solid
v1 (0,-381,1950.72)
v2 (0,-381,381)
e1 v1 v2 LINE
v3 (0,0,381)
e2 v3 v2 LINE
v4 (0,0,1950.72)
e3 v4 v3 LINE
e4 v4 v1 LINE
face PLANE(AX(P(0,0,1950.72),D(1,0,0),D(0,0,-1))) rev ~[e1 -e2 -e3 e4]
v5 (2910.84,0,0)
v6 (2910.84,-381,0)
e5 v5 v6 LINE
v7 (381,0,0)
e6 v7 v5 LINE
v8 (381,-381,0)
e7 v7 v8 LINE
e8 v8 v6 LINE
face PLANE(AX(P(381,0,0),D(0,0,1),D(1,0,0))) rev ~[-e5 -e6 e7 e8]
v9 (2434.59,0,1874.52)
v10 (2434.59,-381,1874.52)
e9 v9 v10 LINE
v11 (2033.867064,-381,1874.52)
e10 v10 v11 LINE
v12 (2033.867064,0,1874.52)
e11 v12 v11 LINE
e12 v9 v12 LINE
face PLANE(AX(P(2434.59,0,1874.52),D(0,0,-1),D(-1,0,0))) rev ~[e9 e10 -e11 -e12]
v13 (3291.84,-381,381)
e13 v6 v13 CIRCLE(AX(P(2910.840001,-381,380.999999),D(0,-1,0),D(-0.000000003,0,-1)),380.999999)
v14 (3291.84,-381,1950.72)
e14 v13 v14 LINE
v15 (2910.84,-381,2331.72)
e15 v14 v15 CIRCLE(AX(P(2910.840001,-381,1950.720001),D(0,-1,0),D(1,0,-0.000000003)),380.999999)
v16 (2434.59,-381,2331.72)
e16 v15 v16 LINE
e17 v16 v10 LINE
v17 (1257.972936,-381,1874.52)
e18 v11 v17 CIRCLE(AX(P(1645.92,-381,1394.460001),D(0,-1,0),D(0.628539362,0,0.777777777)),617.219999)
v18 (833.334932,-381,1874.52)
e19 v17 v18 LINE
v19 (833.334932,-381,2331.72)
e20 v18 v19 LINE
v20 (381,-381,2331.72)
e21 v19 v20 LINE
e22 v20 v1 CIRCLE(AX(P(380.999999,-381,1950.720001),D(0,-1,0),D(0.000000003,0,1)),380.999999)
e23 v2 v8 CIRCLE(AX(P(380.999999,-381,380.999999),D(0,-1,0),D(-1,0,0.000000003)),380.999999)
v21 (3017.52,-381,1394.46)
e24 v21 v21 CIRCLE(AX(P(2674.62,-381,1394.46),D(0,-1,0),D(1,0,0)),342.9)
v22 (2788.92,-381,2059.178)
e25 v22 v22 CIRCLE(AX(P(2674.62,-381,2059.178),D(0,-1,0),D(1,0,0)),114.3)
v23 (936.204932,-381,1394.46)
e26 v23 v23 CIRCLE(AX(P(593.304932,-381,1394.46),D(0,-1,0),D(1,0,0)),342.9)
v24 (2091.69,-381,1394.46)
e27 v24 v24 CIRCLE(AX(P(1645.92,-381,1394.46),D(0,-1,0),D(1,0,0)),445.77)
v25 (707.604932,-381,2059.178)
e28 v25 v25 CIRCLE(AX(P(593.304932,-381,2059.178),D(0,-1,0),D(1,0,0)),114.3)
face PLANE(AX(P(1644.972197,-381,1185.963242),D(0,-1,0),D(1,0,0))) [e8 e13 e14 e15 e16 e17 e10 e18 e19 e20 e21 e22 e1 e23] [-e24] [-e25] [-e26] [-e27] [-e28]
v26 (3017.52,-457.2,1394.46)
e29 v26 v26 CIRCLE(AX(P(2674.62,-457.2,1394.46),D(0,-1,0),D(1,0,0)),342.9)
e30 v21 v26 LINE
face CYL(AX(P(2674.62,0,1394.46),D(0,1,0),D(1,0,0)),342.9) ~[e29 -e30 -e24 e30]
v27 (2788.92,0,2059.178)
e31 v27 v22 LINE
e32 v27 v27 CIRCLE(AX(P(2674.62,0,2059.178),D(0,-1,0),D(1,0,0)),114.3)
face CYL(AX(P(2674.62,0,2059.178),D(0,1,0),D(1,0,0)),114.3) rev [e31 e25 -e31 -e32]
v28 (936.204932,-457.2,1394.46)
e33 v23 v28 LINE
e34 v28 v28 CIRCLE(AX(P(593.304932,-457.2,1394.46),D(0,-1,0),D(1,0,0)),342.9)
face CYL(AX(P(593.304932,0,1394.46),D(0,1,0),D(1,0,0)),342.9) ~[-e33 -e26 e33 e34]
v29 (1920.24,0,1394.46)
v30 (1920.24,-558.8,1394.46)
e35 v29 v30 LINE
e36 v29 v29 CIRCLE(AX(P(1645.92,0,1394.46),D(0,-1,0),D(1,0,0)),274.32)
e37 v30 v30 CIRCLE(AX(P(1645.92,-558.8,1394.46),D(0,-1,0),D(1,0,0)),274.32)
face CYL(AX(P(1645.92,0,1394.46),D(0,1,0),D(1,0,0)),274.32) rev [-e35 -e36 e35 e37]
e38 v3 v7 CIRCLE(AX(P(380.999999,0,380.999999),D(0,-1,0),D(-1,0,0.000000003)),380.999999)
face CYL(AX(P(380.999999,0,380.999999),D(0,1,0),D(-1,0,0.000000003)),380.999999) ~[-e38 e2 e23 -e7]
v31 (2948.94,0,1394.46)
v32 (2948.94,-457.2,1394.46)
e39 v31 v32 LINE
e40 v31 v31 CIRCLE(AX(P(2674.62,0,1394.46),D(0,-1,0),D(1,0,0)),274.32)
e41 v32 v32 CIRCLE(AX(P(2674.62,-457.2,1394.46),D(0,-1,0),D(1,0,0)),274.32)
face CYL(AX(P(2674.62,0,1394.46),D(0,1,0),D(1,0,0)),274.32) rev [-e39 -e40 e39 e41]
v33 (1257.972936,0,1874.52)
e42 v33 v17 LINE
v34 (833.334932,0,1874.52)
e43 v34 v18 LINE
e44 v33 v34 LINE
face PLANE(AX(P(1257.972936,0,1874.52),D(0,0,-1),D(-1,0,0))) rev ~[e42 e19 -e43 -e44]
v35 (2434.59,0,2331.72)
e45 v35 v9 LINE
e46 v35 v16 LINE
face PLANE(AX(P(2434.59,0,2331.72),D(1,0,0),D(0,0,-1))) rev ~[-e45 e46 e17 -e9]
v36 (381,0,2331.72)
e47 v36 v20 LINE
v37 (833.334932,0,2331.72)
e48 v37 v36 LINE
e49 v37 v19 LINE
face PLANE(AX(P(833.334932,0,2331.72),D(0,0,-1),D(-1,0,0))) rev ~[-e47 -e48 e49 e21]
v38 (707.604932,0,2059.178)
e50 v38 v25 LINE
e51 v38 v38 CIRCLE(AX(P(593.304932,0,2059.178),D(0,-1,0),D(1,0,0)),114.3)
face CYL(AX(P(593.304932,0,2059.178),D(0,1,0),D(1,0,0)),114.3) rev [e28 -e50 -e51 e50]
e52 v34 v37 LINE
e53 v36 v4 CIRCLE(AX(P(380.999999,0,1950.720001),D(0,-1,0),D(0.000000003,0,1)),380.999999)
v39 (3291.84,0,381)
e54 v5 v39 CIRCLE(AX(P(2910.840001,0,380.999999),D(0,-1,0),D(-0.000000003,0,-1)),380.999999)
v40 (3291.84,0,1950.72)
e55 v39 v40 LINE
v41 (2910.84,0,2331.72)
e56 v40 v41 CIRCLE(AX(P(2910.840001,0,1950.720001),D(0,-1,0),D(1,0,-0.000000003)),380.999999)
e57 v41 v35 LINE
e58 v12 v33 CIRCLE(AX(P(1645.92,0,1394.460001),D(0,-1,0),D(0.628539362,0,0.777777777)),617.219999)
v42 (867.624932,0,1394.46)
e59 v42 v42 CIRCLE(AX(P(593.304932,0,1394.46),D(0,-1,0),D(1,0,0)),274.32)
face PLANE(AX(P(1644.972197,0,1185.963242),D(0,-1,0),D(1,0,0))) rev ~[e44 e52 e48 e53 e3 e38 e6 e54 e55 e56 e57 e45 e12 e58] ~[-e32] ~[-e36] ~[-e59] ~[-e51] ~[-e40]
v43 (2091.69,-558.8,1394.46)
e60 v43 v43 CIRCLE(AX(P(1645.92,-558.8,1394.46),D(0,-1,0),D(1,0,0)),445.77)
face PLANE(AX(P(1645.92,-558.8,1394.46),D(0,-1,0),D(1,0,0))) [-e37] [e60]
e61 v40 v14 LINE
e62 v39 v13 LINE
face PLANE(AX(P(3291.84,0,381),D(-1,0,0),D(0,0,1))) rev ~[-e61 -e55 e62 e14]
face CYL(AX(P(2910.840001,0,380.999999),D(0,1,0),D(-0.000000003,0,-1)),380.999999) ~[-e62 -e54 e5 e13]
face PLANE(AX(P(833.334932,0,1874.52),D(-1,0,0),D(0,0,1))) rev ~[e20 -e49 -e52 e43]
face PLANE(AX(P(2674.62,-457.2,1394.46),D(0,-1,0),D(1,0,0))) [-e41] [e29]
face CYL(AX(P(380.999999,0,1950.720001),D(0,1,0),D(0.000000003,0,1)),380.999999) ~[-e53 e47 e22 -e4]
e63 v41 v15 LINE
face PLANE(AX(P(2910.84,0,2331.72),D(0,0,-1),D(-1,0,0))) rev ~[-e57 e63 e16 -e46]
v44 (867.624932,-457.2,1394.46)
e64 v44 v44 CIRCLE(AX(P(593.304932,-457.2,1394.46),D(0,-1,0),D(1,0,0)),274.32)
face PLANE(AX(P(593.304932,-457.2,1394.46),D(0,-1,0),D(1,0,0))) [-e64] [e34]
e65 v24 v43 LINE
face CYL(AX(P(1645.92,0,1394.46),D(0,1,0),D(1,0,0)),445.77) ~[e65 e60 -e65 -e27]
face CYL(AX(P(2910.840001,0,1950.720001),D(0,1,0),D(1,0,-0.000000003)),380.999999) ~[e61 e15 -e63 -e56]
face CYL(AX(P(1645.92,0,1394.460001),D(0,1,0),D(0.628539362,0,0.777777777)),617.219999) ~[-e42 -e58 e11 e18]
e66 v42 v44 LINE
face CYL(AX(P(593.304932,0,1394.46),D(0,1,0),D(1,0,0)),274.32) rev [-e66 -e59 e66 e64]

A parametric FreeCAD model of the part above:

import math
import FreeCAD as App
import Part
import Sketcher
from FreeCAD import Vector
Q = App.Units.Quantity

doc = App.newDocument("Part")
body = doc.addObject("PartDesign::Body", "Body")

# Sketch on XZ plane
sketch1 = body.newObject("Sketcher::SketchObject", "Sketch")
sketch1.AttachmentSupport = (doc.getObject("XZ_Plane"), [""])
sketch1.MapMode = "FlatFace"
sketch1.addGeometry(Part.ArcOfCircle(Part.Circle(Vector(380.999999, 380.999999, 0), Vector(0, 0, 1), 380.999999), math.radians(180), math.radians(270)), False)
sketch1.addGeometry(Part.LineSegment(Vector(381, 0, 0), Vector(2910.84, 0, 0)), False)
sketch1.addGeometry(Part.ArcOfCircle(Part.Circle(Vector(2910.840001, 380.999999, 0), Vector(0, 0, 1), 380.999999), math.radians(-90), math.radians(0)), False)
sketch1.addGeometry(Part.LineSegment(Vector(3291.84, 381, 0), Vector(3291.84, 1950.72, 0)), False)
sketch1.addGeometry(Part.ArcOfCircle(Part.Circle(Vector(2910.840001, 1950.720001, 0), Vector(0, 0, 1), 380.999999), math.radians(0), math.radians(90)), False)
sketch1.addGeometry(Part.LineSegment(Vector(2910.84, 2331.72, 0), Vector(2434.59, 2331.72, 0)), False)
sketch1.addGeometry(Part.LineSegment(Vector(2434.59, 2331.72, 0), Vector(2434.59, 1874.52, 0)), False)
sketch1.addGeometry(Part.LineSegment(Vector(2434.59, 1874.52, 0), Vector(2033.867064, 1874.52, 0)), False)
sketch1.addGeometry(Part.ArcOfCircle(Part.Circle(Vector(1645.92, 1394.460001, 0), Vector(0, 0, 1), 617.219999), math.radians(51.057559), math.radians(128.942441)), False)
sketch1.addGeometry(Part.LineSegment(Vector(1257.972936, 1874.52, 0), Vector(833.334932, 1874.52, 0)), False)
sketch1.addGeometry(Part.LineSegment(Vector(833.334932, 1874.52, 0), Vector(833.334932, 2331.72, 0)), False)
sketch1.addGeometry(Part.LineSegment(Vector(833.334932, 2331.72, 0), Vector(381, 2331.72, 0)), False)
sketch1.addGeometry(Part.ArcOfCircle(Part.Circle(Vector(380.999999, 1950.720001, 0), Vector(0, 0, 1), 380.999999), math.radians(90), math.radians(180)), False)
sketch1.addGeometry(Part.LineSegment(Vector(0, 1950.72, 0), Vector(0, 381, 0)), False)
sketch1.addGeometry(Part.Circle(Vector(593.304932, 1394.46, 0), Vector(0, 0, 1), 342.9), False)
sketch1.addGeometry(Part.Circle(Vector(1645.92, 1394.46, 0), Vector(0, 0, 1), 445.77), False)
sketch1.addGeometry(Part.Circle(Vector(2674.62, 1394.46, 0), Vector(0, 0, 1), 342.9), False)
sketch1.addGeometry(Part.Circle(Vector(593.304932, 2059.178, 0), Vector(0, 0, 1), 114.3), False)
sketch1.addGeometry(Part.Circle(Vector(2674.62, 2059.178, 0), Vector(0, 0, 1), 114.3), False)
sketch1.addConstraint(Sketcher.Constraint("Tangent", 0, 2, 1, 1))
sketch1.addConstraint(Sketcher.Constraint("Tangent", 1, 2, 2, 1))
sketch1.addConstraint(Sketcher.Constraint("Tangent", 2, 2, 3, 1))
sketch1.addConstraint(Sketcher.Constraint("Tangent", 3, 2, 4, 1))
sketch1.addConstraint(Sketcher.Constraint("Tangent", 4, 2, 5, 1))
sketch1.addConstraint(Sketcher.Constraint("Coincident", 5, 2, 6, 1))
sketch1.addConstraint(Sketcher.Constraint("Coincident", 6, 2, 7, 1))
sketch1.addConstraint(Sketcher.Constraint("Coincident", 7, 2, 8, 1))
sketch1.addConstraint(Sketcher.Constraint("Coincident", 8, 2, 9, 1))
sketch1.addConstraint(Sketcher.Constraint("Coincident", 9, 2, 10, 1))
sketch1.addConstraint(Sketcher.Constraint("Coincident", 10, 2, 11, 1))
sketch1.addConstraint(Sketcher.Constraint("Tangent", 11, 2, 12, 1))
sketch1.addConstraint(Sketcher.Constraint("Tangent", 12, 2, 13, 1))
sketch1.addConstraint(Sketcher.Constraint("Tangent", 13, 2, 0, 1))
sketch1.addConstraint(Sketcher.Constraint("Horizontal", 1))
sketch1.addConstraint(Sketcher.Constraint("Vertical", 3))
sketch1.addConstraint(Sketcher.Constraint("Horizontal", 5))
sketch1.addConstraint(Sketcher.Constraint("Vertical", 6))
sketch1.addConstraint(Sketcher.Constraint("Horizontal", 7))
sketch1.addConstraint(Sketcher.Constraint("Horizontal", 9))
sketch1.addConstraint(Sketcher.Constraint("Vertical", 10))
sketch1.addConstraint(Sketcher.Constraint("Horizontal", 11))
sketch1.addConstraint(Sketcher.Constraint("Vertical", 13))
sketch1.addConstraint(Sketcher.Constraint("Coincident", 15, 3, 8, 3))
sketch1.addConstraint(Sketcher.Constraint("Equal", 0, 2))
sketch1.addConstraint(Sketcher.Constraint("Equal", 2, 4))
sketch1.addConstraint(Sketcher.Constraint("Equal", 4, 12))
sketch1.addConstraint(Sketcher.Constraint("Equal", 14, 16))
sketch1.addConstraint(Sketcher.Constraint("Equal", 17, 18))
sketch1.addConstraint(Sketcher.Constraint("PointOnObject", 0, 2, -1))
sketch1.addConstraint(Sketcher.Constraint("PointOnObject", 12, 2, -2))
sketch1.addConstraint(Sketcher.Constraint("Horizontal", 4, 3, 12, 3))
sketch1.addConstraint(Sketcher.Constraint("Horizontal", 8, 3, 14, 3))
sketch1.addConstraint(Sketcher.Constraint("Horizontal", 15, 3, 16, 3))
sketch1.addConstraint(Sketcher.Constraint("Horizontal", 17, 3, 18, 3))
sketch1.addConstraint(Sketcher.Constraint("Vertical", 14, 3, 17, 3))
sketch1.addConstraint(Sketcher.Constraint("Vertical", 16, 3, 18, 3))
sketch1.addConstraint(Sketcher.Constraint("Equal", 6, 10))
sketch1.addConstraint(Sketcher.Constraint("Diameter", 14, Q("27 in")))
sketch1.addConstraint(Sketcher.Constraint("Diameter", 17, Q("9 in")))
sketch1.addConstraint(Sketcher.Constraint("Radius", 0, Q("15 in")))
sketch1.addConstraint(Sketcher.Constraint("Diameter", 15, Q("35.1 in")))
sketch1.addConstraint(Sketcher.Constraint("Radius", 8, Q("24.3 in")))
sketch1.addConstraint(Sketcher.Constraint("DistanceY", 6, 2, 6, 1, Q("18 in")))
sketch1.addConstraint(Sketcher.Constraint("DistanceX", 1, 1, 1, 2, Q("99.6 in")))
sketch1.addConstraint(Sketcher.Constraint("DistanceY", 3, 1, 3, 2, Q("61.8 in")))
sketch1.addConstraint(Sketcher.Constraint("DistanceX", 5, 2, 5, 1, Q("18.75 in")))
sketch1.addConstraint(Sketcher.Constraint("DistanceX", -1, 1, 8, 3, Q("64.8 in")))
sketch1.addConstraint(Sketcher.Constraint("DistanceY", -1, 1, 8, 3, Q("54.9 in")))
sketch1.addConstraint(Sketcher.Constraint("DistanceX", -1, 1, 16, 3, Q("105.3 in")))
sketch1.addConstraint(Sketcher.Constraint("DistanceY", -1, 1, 17, 3, Q("81.07 in")))
sketch1.addConstraint(Sketcher.Constraint("DistanceX", 17, 3, 9, 2, Q("9.45 in")))
sketch1.addConstraint(Sketcher.Constraint("DistanceX", 11, 2, 11, 1, Q("452.334932 mm")))
pad1 = body.newObject("PartDesign::Pad", "Pad")
pad1.Profile = sketch1
pad1.Length = Q("15 in")

# Sketch on XZ plane
sketch2 = body.newObject("Sketcher::SketchObject", "Sketch001")
sketch2.AttachmentSupport = (doc.getObject("XZ_Plane"), [""])
sketch2.MapMode = "FlatFace"
sketch2.addGeometry(Part.Circle(Vector(1645.92, 1394.46, 0), Vector(0, 0, 1), 445.77), False)
sketch2.addGeometry(Part.Circle(Vector(1645.92, 1394.46, 0), Vector(0, 0, 1), 274.32), False)
sketch2.addConstraint(Sketcher.Constraint("Coincident", 1, 3, 0, 3))
sketch2.addConstraint(Sketcher.Constraint("Diameter", 0, Q("35.1 in")))
sketch2.addConstraint(Sketcher.Constraint("Diameter", 1, Q("21.6 in")))
sketch2.addConstraint(Sketcher.Constraint("DistanceX", -1, 1, 0, 3, Q("64.8 in")))
sketch2.addConstraint(Sketcher.Constraint("DistanceY", -1, 1, 0, 3, Q("54.9 in")))
pad2 = body.newObject("PartDesign::Pad", "Pad001")
pad2.Profile = sketch2
pad2.Length = Q("22 in")

# Sketch on XZ plane
sketch3 = body.newObject("Sketcher::SketchObject", "Sketch002")
sketch3.AttachmentSupport = (doc.getObject("XZ_Plane"), [""])
sketch3.MapMode = "FlatFace"
sketch3.addGeometry(Part.Circle(Vector(593.304932, 1394.46, 0), Vector(0, 0, 1), 342.9), False)
sketch3.addGeometry(Part.Circle(Vector(593.304932, 1394.46, 0), Vector(0, 0, 1), 274.32), False)
sketch3.addGeometry(Part.Circle(Vector(2674.62, 1394.46, 0), Vector(0, 0, 1), 342.9), False)
sketch3.addGeometry(Part.Circle(Vector(2674.62, 1394.46, 0), Vector(0, 0, 1), 274.32), False)
sketch3.addConstraint(Sketcher.Constraint("Coincident", 1, 3, 0, 3))
sketch3.addConstraint(Sketcher.Constraint("Coincident", 3, 3, 2, 3))
sketch3.addConstraint(Sketcher.Constraint("Equal", 0, 2))
sketch3.addConstraint(Sketcher.Constraint("Equal", 1, 3))
sketch3.addConstraint(Sketcher.Constraint("Horizontal", 1, 3, 2, 3))
sketch3.addConstraint(Sketcher.Constraint("Diameter", 0, Q("27 in")))
sketch3.addConstraint(Sketcher.Constraint("Diameter", 1, Q("21.6 in")))
sketch3.addConstraint(Sketcher.Constraint("DistanceY", -1, 1, 0, 3, Q("54.9 in")))
sketch3.addConstraint(Sketcher.Constraint("DistanceX", -1, 1, 2, 3, Q("105.3 in")))
sketch3.addConstraint(Sketcher.Constraint("DistanceX", -1, 1, 0, 3, Q("593.304932 mm")))
pad3 = body.newObject("PartDesign::Pad", "Pad002")
pad3.Profile = sketch3
pad3.Length = Q("18 in")

doc.recompute()
